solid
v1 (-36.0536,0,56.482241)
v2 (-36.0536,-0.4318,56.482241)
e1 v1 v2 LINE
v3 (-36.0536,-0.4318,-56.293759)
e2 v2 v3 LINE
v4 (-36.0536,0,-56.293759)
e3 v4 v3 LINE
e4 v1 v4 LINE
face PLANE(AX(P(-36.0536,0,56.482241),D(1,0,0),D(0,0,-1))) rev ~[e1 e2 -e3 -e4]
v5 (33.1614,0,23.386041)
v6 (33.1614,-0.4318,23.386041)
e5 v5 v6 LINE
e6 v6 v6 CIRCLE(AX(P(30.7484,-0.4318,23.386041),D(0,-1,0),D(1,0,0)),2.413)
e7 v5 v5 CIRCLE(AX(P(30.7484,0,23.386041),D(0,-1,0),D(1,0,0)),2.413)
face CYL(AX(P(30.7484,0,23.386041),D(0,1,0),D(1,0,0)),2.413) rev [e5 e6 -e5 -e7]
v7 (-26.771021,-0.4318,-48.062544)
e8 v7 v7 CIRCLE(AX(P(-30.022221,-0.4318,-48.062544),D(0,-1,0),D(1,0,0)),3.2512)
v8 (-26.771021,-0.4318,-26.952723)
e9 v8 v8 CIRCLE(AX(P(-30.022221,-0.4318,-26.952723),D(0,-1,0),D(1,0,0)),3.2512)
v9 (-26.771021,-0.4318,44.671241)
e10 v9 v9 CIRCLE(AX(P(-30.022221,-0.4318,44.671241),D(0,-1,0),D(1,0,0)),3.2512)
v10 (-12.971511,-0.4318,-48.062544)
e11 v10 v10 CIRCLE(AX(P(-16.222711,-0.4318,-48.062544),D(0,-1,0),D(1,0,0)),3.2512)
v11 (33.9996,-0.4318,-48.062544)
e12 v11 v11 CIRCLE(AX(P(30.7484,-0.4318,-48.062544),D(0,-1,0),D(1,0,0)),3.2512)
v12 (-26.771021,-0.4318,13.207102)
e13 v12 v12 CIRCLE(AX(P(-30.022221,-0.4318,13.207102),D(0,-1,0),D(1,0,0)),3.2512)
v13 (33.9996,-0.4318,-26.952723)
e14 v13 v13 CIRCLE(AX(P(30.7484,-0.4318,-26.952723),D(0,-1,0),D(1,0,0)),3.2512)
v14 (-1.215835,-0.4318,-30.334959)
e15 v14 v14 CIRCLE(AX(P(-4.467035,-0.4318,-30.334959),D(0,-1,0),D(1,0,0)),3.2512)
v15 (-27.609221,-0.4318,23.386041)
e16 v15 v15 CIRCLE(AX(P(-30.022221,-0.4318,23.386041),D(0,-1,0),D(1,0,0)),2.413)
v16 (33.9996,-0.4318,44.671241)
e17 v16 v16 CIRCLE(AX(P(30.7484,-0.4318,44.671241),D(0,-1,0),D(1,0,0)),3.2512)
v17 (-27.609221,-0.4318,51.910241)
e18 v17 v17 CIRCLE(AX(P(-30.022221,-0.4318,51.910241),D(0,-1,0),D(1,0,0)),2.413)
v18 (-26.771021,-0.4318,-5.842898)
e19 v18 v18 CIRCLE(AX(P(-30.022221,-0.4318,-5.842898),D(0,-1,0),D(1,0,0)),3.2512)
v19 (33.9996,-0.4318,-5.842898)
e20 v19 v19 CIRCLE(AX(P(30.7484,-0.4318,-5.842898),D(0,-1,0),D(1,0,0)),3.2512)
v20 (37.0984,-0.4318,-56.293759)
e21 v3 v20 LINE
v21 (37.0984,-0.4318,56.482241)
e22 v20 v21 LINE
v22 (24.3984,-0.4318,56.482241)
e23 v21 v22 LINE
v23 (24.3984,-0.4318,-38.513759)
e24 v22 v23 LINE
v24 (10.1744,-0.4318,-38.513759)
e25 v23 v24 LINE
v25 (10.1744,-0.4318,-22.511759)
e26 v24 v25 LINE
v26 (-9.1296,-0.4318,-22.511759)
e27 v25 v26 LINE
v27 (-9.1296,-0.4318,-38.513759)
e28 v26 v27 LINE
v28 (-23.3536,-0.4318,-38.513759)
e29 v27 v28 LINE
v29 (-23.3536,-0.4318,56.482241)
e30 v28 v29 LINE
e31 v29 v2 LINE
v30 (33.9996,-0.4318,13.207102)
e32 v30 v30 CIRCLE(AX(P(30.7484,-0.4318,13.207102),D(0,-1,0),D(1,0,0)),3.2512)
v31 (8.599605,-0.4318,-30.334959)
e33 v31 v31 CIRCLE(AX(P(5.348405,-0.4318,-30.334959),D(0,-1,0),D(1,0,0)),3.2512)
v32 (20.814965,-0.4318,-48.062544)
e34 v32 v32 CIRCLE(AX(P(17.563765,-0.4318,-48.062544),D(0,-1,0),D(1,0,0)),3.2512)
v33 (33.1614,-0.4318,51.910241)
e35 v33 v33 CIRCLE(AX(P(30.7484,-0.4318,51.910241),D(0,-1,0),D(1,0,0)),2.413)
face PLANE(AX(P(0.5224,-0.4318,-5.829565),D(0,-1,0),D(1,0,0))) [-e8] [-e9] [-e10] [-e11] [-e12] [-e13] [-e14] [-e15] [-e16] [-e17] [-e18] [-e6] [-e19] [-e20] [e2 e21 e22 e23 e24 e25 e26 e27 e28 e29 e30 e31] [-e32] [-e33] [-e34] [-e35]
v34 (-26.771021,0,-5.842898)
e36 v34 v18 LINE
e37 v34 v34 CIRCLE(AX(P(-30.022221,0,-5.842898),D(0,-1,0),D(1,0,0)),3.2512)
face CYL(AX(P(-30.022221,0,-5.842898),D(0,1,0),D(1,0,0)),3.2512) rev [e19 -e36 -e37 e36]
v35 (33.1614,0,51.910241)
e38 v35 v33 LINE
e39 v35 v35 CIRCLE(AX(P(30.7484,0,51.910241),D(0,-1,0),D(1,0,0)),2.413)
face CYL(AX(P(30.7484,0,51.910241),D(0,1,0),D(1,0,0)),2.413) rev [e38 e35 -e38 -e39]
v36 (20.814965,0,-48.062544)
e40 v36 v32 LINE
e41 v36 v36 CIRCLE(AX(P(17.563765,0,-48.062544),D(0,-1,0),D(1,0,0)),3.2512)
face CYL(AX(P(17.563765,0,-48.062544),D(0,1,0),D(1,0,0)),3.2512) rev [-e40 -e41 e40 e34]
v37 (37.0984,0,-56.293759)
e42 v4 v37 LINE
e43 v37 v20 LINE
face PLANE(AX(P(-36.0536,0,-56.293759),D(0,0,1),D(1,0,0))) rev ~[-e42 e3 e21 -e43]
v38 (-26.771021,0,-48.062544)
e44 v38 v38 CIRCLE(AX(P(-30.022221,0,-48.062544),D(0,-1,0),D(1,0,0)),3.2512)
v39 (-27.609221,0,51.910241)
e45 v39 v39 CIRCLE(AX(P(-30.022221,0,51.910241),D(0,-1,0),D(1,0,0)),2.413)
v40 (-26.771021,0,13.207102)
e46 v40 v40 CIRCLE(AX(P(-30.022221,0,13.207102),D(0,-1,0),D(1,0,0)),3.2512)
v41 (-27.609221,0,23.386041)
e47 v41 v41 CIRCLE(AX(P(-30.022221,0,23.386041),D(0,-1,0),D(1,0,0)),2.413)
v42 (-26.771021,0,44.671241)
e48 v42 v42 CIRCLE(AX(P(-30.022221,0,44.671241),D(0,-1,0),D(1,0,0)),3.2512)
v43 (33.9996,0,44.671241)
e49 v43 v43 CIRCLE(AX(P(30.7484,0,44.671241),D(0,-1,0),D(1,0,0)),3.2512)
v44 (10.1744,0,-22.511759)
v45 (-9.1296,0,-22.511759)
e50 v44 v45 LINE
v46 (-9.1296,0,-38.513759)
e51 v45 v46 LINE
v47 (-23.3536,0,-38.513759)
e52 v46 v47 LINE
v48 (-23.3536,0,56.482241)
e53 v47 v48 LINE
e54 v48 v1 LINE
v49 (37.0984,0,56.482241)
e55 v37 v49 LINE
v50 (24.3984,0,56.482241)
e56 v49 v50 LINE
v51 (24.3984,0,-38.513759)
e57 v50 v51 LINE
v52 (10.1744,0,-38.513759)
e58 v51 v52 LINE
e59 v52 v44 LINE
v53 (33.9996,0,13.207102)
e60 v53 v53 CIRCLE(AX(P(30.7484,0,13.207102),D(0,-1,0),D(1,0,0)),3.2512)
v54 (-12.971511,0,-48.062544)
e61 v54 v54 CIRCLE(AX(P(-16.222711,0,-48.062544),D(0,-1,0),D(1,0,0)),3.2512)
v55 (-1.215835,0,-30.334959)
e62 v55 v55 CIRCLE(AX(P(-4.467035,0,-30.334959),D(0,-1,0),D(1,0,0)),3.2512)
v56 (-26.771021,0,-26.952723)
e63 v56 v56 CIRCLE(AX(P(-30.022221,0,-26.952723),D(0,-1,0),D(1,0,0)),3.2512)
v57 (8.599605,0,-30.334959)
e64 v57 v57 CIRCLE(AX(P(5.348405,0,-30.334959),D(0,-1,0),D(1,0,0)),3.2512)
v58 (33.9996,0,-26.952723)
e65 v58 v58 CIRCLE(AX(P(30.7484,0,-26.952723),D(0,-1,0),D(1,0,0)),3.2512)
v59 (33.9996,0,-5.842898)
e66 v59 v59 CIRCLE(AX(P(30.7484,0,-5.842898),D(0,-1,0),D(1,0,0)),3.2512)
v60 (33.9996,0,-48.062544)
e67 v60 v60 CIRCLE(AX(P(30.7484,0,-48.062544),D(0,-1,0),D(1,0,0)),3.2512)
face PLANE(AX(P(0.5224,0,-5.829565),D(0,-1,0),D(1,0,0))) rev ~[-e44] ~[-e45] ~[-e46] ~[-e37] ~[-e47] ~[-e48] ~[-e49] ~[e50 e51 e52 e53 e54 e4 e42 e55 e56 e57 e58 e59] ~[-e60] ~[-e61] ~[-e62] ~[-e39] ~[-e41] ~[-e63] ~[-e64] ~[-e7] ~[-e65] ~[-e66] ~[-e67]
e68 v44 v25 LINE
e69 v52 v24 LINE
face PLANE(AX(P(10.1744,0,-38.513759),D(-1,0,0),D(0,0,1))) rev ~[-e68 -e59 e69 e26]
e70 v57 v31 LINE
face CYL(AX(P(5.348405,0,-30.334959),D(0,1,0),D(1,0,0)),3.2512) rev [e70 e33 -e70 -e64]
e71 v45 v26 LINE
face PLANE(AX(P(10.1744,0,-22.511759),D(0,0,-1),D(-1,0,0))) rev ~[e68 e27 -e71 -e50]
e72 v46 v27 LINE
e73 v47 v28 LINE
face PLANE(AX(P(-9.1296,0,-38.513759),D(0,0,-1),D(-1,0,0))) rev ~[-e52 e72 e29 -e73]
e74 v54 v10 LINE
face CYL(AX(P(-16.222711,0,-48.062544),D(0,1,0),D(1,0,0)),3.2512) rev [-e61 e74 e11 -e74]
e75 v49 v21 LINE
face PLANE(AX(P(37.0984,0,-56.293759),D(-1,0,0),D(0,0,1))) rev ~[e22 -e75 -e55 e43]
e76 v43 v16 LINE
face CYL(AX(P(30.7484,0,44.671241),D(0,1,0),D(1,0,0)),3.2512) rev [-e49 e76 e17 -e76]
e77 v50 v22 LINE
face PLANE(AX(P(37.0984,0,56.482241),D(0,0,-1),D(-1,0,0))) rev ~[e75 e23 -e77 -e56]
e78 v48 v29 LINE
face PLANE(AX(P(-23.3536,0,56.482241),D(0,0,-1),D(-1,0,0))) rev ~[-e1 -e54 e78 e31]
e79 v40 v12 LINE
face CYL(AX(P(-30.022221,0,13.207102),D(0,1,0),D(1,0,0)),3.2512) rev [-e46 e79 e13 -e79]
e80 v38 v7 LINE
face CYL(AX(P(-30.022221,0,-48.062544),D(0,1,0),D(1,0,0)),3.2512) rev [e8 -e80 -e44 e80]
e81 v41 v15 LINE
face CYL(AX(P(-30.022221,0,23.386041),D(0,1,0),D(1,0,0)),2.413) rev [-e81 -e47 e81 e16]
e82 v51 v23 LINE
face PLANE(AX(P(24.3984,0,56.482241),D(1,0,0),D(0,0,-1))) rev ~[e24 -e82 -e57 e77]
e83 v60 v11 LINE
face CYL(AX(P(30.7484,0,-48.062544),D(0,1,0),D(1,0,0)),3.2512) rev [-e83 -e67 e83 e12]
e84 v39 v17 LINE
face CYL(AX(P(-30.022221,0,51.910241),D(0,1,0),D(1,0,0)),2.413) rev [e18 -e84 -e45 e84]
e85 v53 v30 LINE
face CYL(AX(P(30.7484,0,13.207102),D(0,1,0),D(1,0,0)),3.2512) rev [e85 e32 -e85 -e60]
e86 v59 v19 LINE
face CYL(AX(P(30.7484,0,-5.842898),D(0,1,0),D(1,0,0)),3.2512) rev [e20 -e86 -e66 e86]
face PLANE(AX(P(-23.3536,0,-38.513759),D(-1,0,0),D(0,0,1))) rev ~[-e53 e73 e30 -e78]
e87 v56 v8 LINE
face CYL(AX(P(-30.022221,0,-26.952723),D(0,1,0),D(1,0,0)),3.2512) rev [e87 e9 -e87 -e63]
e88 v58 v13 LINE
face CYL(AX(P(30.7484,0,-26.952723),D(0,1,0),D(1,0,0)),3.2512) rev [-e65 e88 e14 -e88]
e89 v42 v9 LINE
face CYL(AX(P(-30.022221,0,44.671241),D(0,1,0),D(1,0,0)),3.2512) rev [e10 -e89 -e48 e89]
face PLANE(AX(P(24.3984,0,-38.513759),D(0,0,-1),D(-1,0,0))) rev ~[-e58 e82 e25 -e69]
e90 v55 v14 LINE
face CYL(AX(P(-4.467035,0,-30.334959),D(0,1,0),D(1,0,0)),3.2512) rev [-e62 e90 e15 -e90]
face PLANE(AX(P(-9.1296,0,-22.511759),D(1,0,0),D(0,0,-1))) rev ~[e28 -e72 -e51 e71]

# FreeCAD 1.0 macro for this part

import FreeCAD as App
import Part
import Sketcher

V = App.Vector
Q = App.Units.Quantity


def add_polygon(sketch, points):
    """Adds a closed chain of lines whose ends are joined by coincident constraints."""
    first, n = sketch.GeometryCount, len(points)
    for a, b in zip(points, points[1:] + points[:1]):
        sketch.addGeometry(Part.LineSegment(App.Vector(*a, 0), App.Vector(*b, 0)), False)
    for i in range(n):
        sketch.addConstraint(Sketcher.Constraint("Coincident", first + i, 2, first + (i + 1) % n, 1))

doc = App.newDocument("Part")
body = doc.addObject("PartDesign::Body", "Body")

# Sketch on XZ plane
sketch1 = doc.addObject("Sketcher::SketchObject", "Sketch")
body.addObject(sketch1)
sketch1.AttachmentSupport = (doc.XZ_Plane, [""])
sketch1.MapMode = "FlatFace"
add_polygon(sketch1, [(-23.4, 56.5), (-36.1, 56.5), (-36.1, -56.3), (37.1, -56.3), (37.1, 56.5), (24.4, 56.5), (24.4, -38.5), (10.2, -38.5), (10.2, -22.5), (-9.1, -22.5), (-9.1, -38.5), (-23.4, -38.5)])  # lines 0-11
sketch1.addGeometry(Part.Circle(V(-30, -48.1, 0), V(0, 0, 1), 3.3), False)  # 12
sketch1.addGeometry(Part.Circle(V(-30, -27, 0), V(0, 0, 1), 3.3), False)  # 13
sketch1.addGeometry(Part.Circle(V(-16.2, -48.1, 0), V(0, 0, 1), 3.3), False)  # 14
sketch1.addGeometry(Part.Circle(V(-4.5, -30.3, 0), V(0, 0, 1), 3.3), False)  # 15
sketch1.addGeometry(Part.Circle(V(-30, -5.8, 0), V(0, 0, 1), 3.3), False)  # 16
sketch1.addGeometry(Part.Circle(V(5.3, -30.3, 0), V(0, 0, 1), 3.3), False)  # 17
sketch1.addGeometry(Part.Circle(V(17.6, -48.1, 0), V(0, 0, 1), 3.3), False)  # 18
sketch1.addGeometry(Part.Circle(V(30.7, -48.1, 0), V(0, 0, 1), 3.3), False)  # 19
sketch1.addGeometry(Part.Circle(V(30.7, -27, 0), V(0, 0, 1), 3.3), False)  # 20
sketch1.addGeometry(Part.Circle(V(30.7, -5.8, 0), V(0, 0, 1), 3.3), False)  # 21
sketch1.addGeometry(Part.Circle(V(-30, 13.2, 0), V(0, 0, 1), 3.3), False)  # 22
sketch1.addGeometry(Part.Circle(V(-30, 23.4, 0), V(0, 0, 1), 2.4), False)  # 23
sketch1.addGeometry(Part.Circle(V(-30, 44.7, 0), V(0, 0, 1), 3.3), False)  # 24
sketch1.addGeometry(Part.Circle(V(-30, 51.9, 0), V(0, 0, 1), 2.4), False)  # 25
sketch1.addGeometry(Part.Circle(V(30.7, 13.2, 0), V(0, 0, 1), 3.3), False)  # 26
sketch1.addGeometry(Part.Circle(V(30.7, 23.4, 0), V(0, 0, 1), 2.4), False)  # 27
sketch1.addGeometry(Part.Circle(V(30.7, 44.7, 0), V(0, 0, 1), 3.3), False)  # 28
sketch1.addGeometry(Part.Circle(V(30.7, 51.9, 0), V(0, 0, 1), 2.4), False)  # 29
sketch1.addConstraint([
    Sketcher.Constraint("Horizontal", 0),
    Sketcher.Constraint("Vertical", 1),
    Sketcher.Constraint("Horizontal", 2),
    Sketcher.Constraint("Vertical", 3),
    Sketcher.Constraint("Horizontal", 4),
    Sketcher.Constraint("Vertical", 5),
    Sketcher.Constraint("Horizontal", 6),
    Sketcher.Constraint("Vertical", 7),
    Sketcher.Constraint("Horizontal", 8),
    Sketcher.Constraint("Vertical", 9),
    Sketcher.Constraint("Horizontal", 10),
    Sketcher.Constraint("Vertical", 11),
    Sketcher.Constraint("Equal", 12, 13),
    Sketcher.Constraint("Equal", 13, 14),
    Sketcher.Constraint("Equal", 14, 15),
    Sketcher.Constraint("Equal", 15, 16),
    Sketcher.Constraint("Equal", 16, 17),
    Sketcher.Constraint("Equal", 17, 18),
    Sketcher.Constraint("Equal", 18, 19),
    Sketcher.Constraint("Equal", 19, 20),
    Sketcher.Constraint("Equal", 20, 21),
    Sketcher.Constraint("Equal", 21, 22),
    Sketcher.Constraint("Equal", 22, 24),
    Sketcher.Constraint("Equal", 23, 25),
    Sketcher.Constraint("Equal", 24, 26),
    Sketcher.Constraint("Equal", 25, 27),
    Sketcher.Constraint("Equal", 26, 28),
    Sketcher.Constraint("Equal", 27, 29),
    Sketcher.Constraint("Horizontal", 12, 3, 14, 3),
    Sketcher.Constraint("Horizontal", 15, 3, 17, 3),
    Sketcher.Constraint("Horizontal", 14, 3, 18, 3),
    Sketcher.Constraint("Horizontal", 18, 3, 19, 3),
    Sketcher.Constraint("Horizontal", 13, 3, 20, 3),
    Sketcher.Constraint("Horizontal", 16, 3, 21, 3),
    Sketcher.Constraint("Horizontal", 22, 3, 26, 3),
    Sketcher.Constraint("Horizontal", 23, 3, 27, 3),
    Sketcher.Constraint("Horizontal", 24, 3, 28, 3),
    Sketcher.Constraint("Horizontal", 25, 3, 29, 3),
    Sketcher.Constraint("Horizontal", 0, 2, 3, 2),
    Sketcher.Constraint("Horizontal", 6, 2, 9, 2),
    Sketcher.Constraint("Vertical", 12, 3, 13, 3),
    Sketcher.Constraint("Vertical", 13, 3, 16, 3),
    Sketcher.Constraint("Vertical", 19, 3, 20, 3),
    Sketcher.Constraint("Vertical", 20, 3, 21, 3),
    Sketcher.Constraint("Vertical", 16, 3, 22, 3),
    Sketcher.Constraint("Vertical", 22, 3, 23, 3),
    Sketcher.Constraint("Vertical", 23, 3, 24, 3),
    Sketcher.Constraint("Vertical", 24, 3, 25, 3),
    Sketcher.Constraint("Vertical", 21, 3, 26, 3),
    Sketcher.Constraint("Vertical", 26, 3, 27, 3),
    Sketcher.Constraint("Vertical", 27, 3, 28, 3),
    Sketcher.Constraint("Vertical", 28, 3, 29, 3),
    Sketcher.Constraint("Equal", 0, 4),
    Sketcher.Constraint("Equal", 6, 10),
    Sketcher.Constraint("Diameter", 23, Q("0.19 in")),
    Sketcher.Constraint("Diameter", 12, Q("0.256 in")),
    Sketcher.Constraint("DistanceX", 0, 2, 0, 1, Q("0.5 in")),
    Sketcher.Constraint("DistanceX", 17, 3, 19, 3, Q("0.9999998 in")),
    Sketcher.Constraint("DistanceX", 2, 1, 2, 2, Q("2.88 in")),
    Sketcher.Constraint("DistanceX", 6, 2, 6, 1, Q("0.56 in")),
    Sketcher.Constraint("DistanceY", 1, 2, 1, 1, Q("4.44 in")),
    Sketcher.Constraint("DistanceY", 5, 2, 5, 1, Q("3.74 in")),
    Sketcher.Constraint("DistanceY", 7, 1, 7, 2, Q("0.63 in")),
    Sketcher.Constraint("DistanceY", 16, 3, 22, 3, Q("0.75 in")),
    Sketcher.Constraint("DistanceY", 25, 3, 0, 2, Q("0.18 in")),
    Sketcher.Constraint("DistanceX", 1, 2, 17, 3, Q("1.6300002 in")),
    Sketcher.Constraint("DistanceY", 15, 3, 23, 3, Q("2.115 in")),
    Sketcher.Constraint("DistanceY", 23, 3, 24, 3, Q("0.838 in")),
    Sketcher.Constraint("DistanceY", 24, 3, 25, 3, Q("0.285 in")),
    Sketcher.Constraint("DistanceX", -1, 1, 19, 3, 30.7484),
    Sketcher.Constraint("DistanceX", 15, 3, 18, 3, 22.0308),
    Sketcher.Constraint("DistanceX", 12, 3, -1, 1, 30.022221),
    Sketcher.Constraint("DistanceX", 14, 3, -1, 1, 16.222711),
    Sketcher.Constraint("DistanceY", 15, 3, -1, 1, 30.334959),
    Sketcher.Constraint("DistanceY", 12, 3, 13, 3, 21.109821),
    Sketcher.Constraint("DistanceY", 15, 3, 16, 3, 24.492061),
    Sketcher.Constraint("DistanceX", 15, 3, 17, 3, 9.81544),
    Sketcher.Constraint("DistanceY", 12, 3, -1, 1, 48.062544),
])
pad1 = doc.addObject("PartDesign::Pad", "Pad")
body.addObject(pad1)
pad1.Profile = sketch1
pad1.Length = Q("0.017 in")

doc.recompute()
